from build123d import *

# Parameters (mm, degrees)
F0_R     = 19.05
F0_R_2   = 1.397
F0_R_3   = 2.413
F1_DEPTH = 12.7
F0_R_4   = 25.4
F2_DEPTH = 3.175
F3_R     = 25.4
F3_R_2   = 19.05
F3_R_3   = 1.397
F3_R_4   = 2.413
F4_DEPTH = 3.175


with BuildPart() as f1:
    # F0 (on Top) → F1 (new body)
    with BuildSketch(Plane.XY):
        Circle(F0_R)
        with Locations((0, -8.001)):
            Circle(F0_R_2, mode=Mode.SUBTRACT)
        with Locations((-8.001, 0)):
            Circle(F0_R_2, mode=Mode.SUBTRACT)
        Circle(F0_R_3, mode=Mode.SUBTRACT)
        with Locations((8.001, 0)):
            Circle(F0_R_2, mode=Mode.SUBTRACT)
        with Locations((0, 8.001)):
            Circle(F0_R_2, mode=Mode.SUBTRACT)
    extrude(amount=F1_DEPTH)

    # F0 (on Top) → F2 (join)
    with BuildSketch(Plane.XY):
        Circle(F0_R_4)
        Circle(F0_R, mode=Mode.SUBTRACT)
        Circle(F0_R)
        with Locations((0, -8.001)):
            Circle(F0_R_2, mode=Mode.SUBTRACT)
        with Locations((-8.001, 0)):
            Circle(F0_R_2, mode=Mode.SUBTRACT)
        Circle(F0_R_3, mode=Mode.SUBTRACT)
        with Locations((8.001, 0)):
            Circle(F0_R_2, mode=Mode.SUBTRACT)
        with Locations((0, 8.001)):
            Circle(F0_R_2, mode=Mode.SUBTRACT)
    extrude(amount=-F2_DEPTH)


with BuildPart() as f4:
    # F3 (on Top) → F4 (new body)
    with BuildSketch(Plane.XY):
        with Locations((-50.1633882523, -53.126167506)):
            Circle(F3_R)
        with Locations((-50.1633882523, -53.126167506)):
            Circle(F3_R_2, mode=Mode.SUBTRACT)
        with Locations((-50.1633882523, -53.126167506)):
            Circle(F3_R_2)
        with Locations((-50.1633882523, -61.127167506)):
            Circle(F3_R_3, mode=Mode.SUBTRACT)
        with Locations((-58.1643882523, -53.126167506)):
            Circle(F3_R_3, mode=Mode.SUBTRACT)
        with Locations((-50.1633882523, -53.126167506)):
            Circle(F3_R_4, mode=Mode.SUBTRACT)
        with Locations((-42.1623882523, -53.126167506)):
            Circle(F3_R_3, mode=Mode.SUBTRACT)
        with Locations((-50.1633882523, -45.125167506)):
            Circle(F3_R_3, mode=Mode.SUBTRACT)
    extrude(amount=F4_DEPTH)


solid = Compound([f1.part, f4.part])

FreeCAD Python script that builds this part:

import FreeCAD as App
import Part
import Sketcher
Q = App.Units.Quantity

doc = App.newDocument("Part")
body = doc.addObject("PartDesign::Body", "Body")

# Sketch on XY plane
sketch1 = body.newObject("Sketcher::SketchObject", "Sketch")
sketch1.AttachmentSupport = (doc.getObject("XY_Plane"), [""])
sketch1.MapMode = "FlatFace"
sketch1.addGeometry([
    Part.Circle(App.Vector(0, 0, 0), App.Vector(0, 0, 1), 19.05),  # 0
    Part.Circle(App.Vector(0, -8.001, 0), App.Vector(0, 0, 1), 1.397),  # 1
    Part.Circle(App.Vector(-8.001, 0, 0), App.Vector(0, 0, 1), 1.397),  # 2
    Part.Circle(App.Vector(0, 0, 0), App.Vector(0, 0, 1), 2.413),  # 3
    Part.Circle(App.Vector(8.001, 0, 0), App.Vector(0, 0, 1), 1.397),  # 4
    Part.Circle(App.Vector(0, 8.001, 0), App.Vector(0, 0, 1), 1.397),  # 5
], False)
sketch1.addConstraint([
    Sketcher.Constraint("Coincident", 0, 3, -1, 1),
    Sketcher.Constraint("Coincident", 3, 3, -1, 1),
    Sketcher.Constraint("Equal", 1, 2),
    Sketcher.Constraint("Equal", 2, 4),
    Sketcher.Constraint("Equal", 4, 5),
    Sketcher.Constraint("Symmetric", 2, 3, 4, 3, -1, 1),
    Sketcher.Constraint("Symmetric", 1, 3, 5, 3, -1, 1),
    Sketcher.Constraint("PointOnObject", 1, 3, -2),
    Sketcher.Constraint("PointOnObject", 2, 3, -1),
    Sketcher.Constraint("Diameter", 0, Q("1.5 in")),
    Sketcher.Constraint("Diameter", 1, Q("0.11 in")),
    Sketcher.Constraint("Diameter", 3, Q("0.19 in")),
    Sketcher.Constraint("DistanceX", 2, 3, 4, 3, Q("0.63 in")),
    Sketcher.Constraint("DistanceY", 1, 3, 5, 3, Q("0.63 in")),
])
pad1 = body.newObject("PartDesign::Pad", "Pad")
pad1.Profile = sketch1
pad1.Length = Q("0.5 in")

# Sketch on XY plane
sketch2 = body.newObject("Sketcher::SketchObject", "Sketch001")
sketch2.AttachmentSupport = (doc.getObject("XY_Plane"), [""])
sketch2.MapMode = "FlatFace"
sketch2.addGeometry([
    Part.Circle(App.Vector(0, 0, 0), App.Vector(0, 0, 1), 25.4),  # 0
    Part.Circle(App.Vector(0, -8.001, 0), App.Vector(0, 0, 1), 1.397),  # 1
    Part.Circle(App.Vector(-8.001, 0, 0), App.Vector(0, 0, 1), 1.397),  # 2
    Part.Circle(App.Vector(0, 0, 0), App.Vector(0, 0, 1), 2.413),  # 3
    Part.Circle(App.Vector(8.001, 0, 0), App.Vector(0, 0, 1), 1.397),  # 4
    Part.Circle(App.Vector(0, 8.001, 0), App.Vector(0, 0, 1), 1.397),  # 5
], False)
sketch2.addConstraint([
    Sketcher.Constraint("Coincident", 0, 3, -1, 1),
    Sketcher.Constraint("Coincident", 3, 3, -1, 1),
    Sketcher.Constraint("Equal", 1, 2),
    Sketcher.Constraint("Equal", 2, 4),
    Sketcher.Constraint("Equal", 4, 5),
    Sketcher.Constraint("Symmetric", 2, 3, 4, 3, -1, 1),
    Sketcher.Constraint("Symmetric", 1, 3, 5, 3, -1, 1),
    Sketcher.Constraint("PointOnObject", 1, 3, -2),
    Sketcher.Constraint("PointOnObject", 2, 3, -1),
    Sketcher.Constraint("Diameter", 0, Q("2 in")),
    Sketcher.Constraint("Diameter", 1, Q("0.11 in")),
    Sketcher.Constraint("Diameter", 3, Q("0.19 in")),
    Sketcher.Constraint("DistanceX", 2, 3, 4, 3, Q("0.63 in")),
    Sketcher.Constraint("DistanceY", 1, 3, 5, 3, Q("0.63 in")),
])
pad2 = body.newObject("PartDesign::Pad", "Pad001")
pad2.Profile = sketch2
pad2.Length = Q("0.125 in")
pad2.Reversed = True
body2 = doc.addObject("PartDesign::Body", "Body001")

# Sketch on XY plane
sketch3 = body2.newObject("Sketcher::SketchObject", "Sketch002")
sketch3.AttachmentSupport = (doc.getObject("XY_Plane001"), [""])
sketch3.MapMode = "FlatFace"
sketch3.addGeometry([
    Part.Circle(App.Vector(-50.163388, -53.126168, 0), App.Vector(0, 0, 1), 25.4),  # 0
    Part.Circle(App.Vector(-50.163388, -61.127168, 0), App.Vector(0, 0, 1), 1.397),  # 1
    Part.Circle(App.Vector(-58.164388, -53.126168, 0), App.Vector(0, 0, 1), 1.397),  # 2
    Part.Circle(App.Vector(-50.163388, -53.126168, 0), App.Vector(0, 0, 1), 2.413),  # 3
    Part.Circle(App.Vector(-42.162388, -53.126168, 0), App.Vector(0, 0, 1), 1.397),  # 4
    Part.Circle(App.Vector(-50.163388, -45.125168, 0), App.Vector(0, 0, 1), 1.397),  # 5
], False)
sketch3.addConstraint([
    Sketcher.Constraint("Coincident", 3, 3, 0, 3),
    Sketcher.Constraint("Equal", 1, 2),
    Sketcher.Constraint("Equal", 2, 4),
    Sketcher.Constraint("Equal", 4, 5),
    Sketcher.Constraint("Horizontal", 0, 3, 2, 3),
    Sketcher.Constraint("Horizontal", 3, 3, 4, 3),
    Sketcher.Constraint("Vertical", 0, 3, 1, 3),
    Sketcher.Constraint("Vertical", 3, 3, 5, 3),
    Sketcher.Constraint("Diameter", 0, Q("2 in")),
    Sketcher.Constraint("Diameter", 1, Q("0.11 in")),
    Sketcher.Constraint("Diameter", 3, Q("0.19 in")),
    Sketcher.Constraint("DistanceX", 2, 3, 4, 3, Q("0.63 in")),
    Sketcher.Constraint("DistanceY", 1, 3, 5, 3, Q("0.63 in")),
    Sketcher.Constraint("DistanceY", 1, 3, 0, 3, Q("0.315 in")),
    Sketcher.Constraint("DistanceX", 2, 3, 0, 3, Q("0.315 in")),
    Sketcher.Constraint("DistanceX", 0, 3, -1, 1, 50.163388),
    Sketcher.Constraint("DistanceY", 0, 3, -1, 1, 53.126168),
])
pad3 = body2.newObject("PartDesign::Pad", "Pad002")
pad3.Profile = sketch3
pad3.Length = Q("0.125 in")

doc.recompute()
